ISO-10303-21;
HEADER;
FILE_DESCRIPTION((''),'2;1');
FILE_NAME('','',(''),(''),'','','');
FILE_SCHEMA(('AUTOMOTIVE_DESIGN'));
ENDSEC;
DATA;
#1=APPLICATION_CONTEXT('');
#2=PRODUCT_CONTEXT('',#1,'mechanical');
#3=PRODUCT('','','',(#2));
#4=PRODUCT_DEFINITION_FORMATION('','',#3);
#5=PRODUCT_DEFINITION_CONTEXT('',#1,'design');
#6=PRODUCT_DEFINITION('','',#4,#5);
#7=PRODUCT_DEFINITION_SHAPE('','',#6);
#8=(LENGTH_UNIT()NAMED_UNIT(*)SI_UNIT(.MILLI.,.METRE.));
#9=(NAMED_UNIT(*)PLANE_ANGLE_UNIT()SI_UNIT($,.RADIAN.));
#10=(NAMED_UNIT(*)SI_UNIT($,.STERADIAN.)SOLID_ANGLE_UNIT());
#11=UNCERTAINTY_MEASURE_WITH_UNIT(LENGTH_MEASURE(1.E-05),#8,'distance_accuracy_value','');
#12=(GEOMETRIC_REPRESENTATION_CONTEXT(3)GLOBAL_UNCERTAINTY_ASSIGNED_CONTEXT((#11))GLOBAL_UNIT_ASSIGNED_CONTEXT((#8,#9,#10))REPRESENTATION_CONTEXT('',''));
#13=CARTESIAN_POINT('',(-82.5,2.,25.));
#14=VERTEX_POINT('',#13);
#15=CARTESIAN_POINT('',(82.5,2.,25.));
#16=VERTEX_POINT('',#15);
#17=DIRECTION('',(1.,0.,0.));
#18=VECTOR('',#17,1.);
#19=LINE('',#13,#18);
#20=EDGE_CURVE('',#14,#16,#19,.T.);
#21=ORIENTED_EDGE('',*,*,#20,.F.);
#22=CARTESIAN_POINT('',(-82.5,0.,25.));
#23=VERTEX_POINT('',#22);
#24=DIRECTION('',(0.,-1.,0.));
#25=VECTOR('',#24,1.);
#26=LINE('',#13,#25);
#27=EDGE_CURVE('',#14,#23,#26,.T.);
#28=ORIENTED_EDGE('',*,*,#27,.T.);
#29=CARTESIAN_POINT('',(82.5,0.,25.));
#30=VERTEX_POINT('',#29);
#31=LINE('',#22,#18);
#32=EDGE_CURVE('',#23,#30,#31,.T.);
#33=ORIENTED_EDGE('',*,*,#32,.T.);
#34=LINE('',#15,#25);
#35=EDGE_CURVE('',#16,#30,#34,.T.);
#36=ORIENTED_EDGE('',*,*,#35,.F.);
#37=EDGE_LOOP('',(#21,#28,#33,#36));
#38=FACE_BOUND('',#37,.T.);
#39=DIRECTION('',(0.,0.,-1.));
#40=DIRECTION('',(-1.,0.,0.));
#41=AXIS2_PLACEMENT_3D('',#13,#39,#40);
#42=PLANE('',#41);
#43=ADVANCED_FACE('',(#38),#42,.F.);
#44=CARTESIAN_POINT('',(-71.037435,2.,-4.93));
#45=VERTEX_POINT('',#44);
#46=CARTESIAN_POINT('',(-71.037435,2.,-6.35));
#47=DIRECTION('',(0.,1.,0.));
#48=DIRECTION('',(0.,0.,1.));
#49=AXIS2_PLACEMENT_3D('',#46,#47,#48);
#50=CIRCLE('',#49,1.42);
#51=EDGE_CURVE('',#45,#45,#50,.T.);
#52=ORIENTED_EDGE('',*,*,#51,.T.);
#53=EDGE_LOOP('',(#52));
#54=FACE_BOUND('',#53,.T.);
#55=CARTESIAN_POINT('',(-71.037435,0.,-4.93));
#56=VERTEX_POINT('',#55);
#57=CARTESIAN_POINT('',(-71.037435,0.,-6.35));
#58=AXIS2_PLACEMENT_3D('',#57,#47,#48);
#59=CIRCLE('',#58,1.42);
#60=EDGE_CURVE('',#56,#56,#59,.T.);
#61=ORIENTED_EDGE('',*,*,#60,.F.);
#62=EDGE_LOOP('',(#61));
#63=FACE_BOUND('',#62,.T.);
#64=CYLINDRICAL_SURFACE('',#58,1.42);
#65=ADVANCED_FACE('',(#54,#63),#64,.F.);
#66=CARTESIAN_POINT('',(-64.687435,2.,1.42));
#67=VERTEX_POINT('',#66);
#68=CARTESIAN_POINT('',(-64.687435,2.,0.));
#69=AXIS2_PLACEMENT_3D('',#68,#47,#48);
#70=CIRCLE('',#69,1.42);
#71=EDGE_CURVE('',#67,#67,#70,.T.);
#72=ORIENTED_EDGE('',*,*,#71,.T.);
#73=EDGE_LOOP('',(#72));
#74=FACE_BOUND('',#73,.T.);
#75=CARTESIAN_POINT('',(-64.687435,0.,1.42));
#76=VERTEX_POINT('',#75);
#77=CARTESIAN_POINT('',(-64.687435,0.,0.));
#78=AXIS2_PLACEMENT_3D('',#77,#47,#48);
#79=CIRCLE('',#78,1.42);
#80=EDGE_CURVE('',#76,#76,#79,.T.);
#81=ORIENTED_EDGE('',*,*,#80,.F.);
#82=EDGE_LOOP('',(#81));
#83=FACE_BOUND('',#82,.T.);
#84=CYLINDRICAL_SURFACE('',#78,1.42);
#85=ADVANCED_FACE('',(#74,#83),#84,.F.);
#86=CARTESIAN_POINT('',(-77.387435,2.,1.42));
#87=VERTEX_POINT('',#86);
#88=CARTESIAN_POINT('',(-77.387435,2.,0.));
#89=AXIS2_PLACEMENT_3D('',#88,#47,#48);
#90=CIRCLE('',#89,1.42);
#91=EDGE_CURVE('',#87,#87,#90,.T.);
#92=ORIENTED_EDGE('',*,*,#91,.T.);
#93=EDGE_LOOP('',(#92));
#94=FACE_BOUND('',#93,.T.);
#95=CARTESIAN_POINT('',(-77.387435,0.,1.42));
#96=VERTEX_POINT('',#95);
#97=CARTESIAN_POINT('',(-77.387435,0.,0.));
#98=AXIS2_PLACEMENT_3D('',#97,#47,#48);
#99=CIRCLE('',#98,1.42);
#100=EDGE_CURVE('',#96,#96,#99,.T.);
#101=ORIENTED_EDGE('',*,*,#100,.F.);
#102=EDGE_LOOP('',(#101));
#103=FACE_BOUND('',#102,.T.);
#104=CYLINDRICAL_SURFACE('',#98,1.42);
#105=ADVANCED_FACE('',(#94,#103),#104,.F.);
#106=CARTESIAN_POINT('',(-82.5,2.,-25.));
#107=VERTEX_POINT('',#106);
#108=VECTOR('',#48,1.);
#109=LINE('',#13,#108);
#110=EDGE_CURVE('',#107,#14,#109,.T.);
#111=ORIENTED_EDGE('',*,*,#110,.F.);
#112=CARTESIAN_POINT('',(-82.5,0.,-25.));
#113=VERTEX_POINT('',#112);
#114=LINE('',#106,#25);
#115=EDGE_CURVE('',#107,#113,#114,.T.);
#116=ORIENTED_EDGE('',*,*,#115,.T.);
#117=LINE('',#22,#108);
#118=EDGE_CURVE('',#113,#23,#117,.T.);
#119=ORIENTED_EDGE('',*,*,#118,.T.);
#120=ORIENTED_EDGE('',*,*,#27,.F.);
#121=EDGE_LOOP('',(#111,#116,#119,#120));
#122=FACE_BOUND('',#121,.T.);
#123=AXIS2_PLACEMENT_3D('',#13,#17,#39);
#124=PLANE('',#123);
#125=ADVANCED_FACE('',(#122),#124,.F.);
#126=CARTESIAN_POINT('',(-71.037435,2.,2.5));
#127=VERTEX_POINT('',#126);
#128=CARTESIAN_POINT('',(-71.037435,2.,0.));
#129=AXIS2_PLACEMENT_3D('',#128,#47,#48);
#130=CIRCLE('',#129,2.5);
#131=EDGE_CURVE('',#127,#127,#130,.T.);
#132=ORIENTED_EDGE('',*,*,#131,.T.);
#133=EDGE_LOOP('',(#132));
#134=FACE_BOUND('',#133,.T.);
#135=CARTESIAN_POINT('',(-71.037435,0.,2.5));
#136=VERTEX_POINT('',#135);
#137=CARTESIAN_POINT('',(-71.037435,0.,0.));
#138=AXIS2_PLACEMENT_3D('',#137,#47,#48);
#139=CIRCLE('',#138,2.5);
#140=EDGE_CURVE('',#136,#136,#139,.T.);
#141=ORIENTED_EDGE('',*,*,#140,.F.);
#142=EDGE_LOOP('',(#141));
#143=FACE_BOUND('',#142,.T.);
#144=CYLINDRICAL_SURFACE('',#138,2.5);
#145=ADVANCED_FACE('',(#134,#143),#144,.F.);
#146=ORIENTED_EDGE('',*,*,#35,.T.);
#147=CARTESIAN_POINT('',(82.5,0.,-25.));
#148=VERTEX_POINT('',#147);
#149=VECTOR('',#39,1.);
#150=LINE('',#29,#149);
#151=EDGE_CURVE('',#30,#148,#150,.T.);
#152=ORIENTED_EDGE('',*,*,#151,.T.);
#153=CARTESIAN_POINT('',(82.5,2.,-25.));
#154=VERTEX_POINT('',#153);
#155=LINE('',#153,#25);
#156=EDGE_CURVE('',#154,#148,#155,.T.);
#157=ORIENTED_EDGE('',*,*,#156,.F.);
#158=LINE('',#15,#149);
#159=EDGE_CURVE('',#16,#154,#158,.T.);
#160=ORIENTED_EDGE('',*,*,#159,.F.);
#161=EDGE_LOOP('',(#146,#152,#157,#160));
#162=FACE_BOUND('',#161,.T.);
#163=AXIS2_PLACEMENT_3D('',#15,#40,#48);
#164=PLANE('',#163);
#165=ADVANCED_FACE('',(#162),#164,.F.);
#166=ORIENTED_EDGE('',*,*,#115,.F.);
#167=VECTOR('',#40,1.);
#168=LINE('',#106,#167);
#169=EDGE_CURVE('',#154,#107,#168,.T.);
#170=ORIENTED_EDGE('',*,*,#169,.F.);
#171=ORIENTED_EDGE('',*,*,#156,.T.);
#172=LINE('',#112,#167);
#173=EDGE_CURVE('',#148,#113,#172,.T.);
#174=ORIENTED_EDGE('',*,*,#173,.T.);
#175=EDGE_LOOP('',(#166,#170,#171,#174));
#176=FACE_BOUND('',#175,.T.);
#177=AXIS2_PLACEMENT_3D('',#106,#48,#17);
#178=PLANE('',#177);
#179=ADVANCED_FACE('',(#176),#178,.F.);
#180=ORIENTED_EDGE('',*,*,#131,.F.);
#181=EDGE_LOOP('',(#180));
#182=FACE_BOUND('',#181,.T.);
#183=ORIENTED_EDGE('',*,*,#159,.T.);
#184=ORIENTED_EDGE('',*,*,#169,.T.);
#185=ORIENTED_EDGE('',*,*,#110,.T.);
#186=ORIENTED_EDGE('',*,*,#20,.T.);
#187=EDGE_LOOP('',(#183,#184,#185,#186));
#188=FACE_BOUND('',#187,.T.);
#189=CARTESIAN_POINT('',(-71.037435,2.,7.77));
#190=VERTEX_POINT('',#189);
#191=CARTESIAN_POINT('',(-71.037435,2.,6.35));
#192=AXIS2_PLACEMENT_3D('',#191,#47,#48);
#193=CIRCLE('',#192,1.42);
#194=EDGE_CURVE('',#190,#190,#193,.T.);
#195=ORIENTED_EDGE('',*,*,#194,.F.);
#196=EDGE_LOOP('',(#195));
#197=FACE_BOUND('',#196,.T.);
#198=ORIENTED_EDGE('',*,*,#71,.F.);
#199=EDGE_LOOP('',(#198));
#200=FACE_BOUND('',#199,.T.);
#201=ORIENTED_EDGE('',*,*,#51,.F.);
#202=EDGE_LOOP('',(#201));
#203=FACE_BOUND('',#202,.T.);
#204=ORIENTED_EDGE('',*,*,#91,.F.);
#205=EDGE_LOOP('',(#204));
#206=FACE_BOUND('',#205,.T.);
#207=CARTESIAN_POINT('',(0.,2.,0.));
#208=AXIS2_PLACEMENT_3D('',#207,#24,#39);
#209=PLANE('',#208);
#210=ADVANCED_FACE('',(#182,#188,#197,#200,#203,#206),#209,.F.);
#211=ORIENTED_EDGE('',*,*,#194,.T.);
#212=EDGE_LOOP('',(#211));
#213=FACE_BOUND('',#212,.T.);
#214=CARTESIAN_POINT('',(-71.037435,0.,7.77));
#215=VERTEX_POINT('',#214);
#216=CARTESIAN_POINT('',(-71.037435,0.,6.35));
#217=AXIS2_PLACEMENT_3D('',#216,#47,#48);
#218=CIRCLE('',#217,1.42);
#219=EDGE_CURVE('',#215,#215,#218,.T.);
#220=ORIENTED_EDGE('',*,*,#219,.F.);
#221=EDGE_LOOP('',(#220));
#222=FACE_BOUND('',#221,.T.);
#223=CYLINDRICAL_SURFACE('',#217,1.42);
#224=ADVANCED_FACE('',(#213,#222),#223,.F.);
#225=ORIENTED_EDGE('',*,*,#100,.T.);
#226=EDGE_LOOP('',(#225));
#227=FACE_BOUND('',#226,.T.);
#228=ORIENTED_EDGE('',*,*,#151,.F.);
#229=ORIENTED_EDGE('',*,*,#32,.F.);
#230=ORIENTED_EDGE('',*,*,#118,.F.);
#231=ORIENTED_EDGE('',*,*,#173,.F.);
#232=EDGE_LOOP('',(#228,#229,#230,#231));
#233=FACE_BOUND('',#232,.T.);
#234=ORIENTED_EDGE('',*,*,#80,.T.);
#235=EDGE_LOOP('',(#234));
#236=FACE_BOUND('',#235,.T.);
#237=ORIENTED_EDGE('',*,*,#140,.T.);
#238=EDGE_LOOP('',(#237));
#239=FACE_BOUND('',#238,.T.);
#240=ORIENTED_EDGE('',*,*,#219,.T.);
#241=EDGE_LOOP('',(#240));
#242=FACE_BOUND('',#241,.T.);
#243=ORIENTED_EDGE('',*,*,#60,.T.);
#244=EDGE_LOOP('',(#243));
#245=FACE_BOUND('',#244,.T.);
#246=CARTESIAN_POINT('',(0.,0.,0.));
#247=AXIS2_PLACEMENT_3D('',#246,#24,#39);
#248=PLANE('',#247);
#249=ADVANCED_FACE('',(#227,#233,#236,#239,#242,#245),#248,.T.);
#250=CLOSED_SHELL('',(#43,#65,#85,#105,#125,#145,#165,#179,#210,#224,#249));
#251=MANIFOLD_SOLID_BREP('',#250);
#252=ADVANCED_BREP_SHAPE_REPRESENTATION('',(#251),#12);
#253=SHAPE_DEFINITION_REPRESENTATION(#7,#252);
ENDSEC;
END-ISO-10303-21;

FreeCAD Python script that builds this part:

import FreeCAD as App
import Part
import Sketcher

V = App.Vector
Q = App.Units.Quantity


def add_polygon(sketch, points):
    """Adds a closed chain of lines whose ends are joined by coincident constraints."""
    first, n = sketch.GeometryCount, len(points)
    for a, b in zip(points, points[1:] + points[:1]):
        sketch.addGeometry(Part.LineSegment(App.Vector(*a, 0), App.Vector(*b, 0)), False)
    for i in range(n):
        sketch.addConstraint(Sketcher.Constraint("Coincident", first + i, 2, first + (i + 1) % n, 1))

doc = App.newDocument("Part")
params = doc.addObject("Spreadsheet::Sheet", "Params")
for row, (alias, value) in enumerate([
    ("sketch1_width", "165 mm"),
    ("sketch1_height", "50 mm"),
    ("pad1_length", "2 mm"),
    ("sketch2_diameter", "5 mm"),
    ("sketch2_diameter2", "2.84 mm"),
    ("pocket1_length", "2 mm"),
], start=1):
    params.set(f"A{row}", alias)
    params.set(f"B{row}", "=" + value)
    params.setAlias(f"B{row}", alias)

body = doc.addObject("PartDesign::Body", "Body")

# Sketch on XZ plane
sketch1 = body.newObject("Sketcher::SketchObject", "Sketch")
sketch1.AttachmentSupport = (doc.getObject("XZ_Plane"), [""])
sketch1.MapMode = "FlatFace"
add_polygon(sketch1, [(-82.5, -25), (-82.5, 25), (82.5, 25), (82.5, -25)])  # lines 0-3
sketch1.addConstraint([
    Sketcher.Constraint("Vertical", 0),
    Sketcher.Constraint("Horizontal", 1),
    Sketcher.Constraint("Vertical", 2),
    Sketcher.Constraint("Horizontal", 3),
    Sketcher.Constraint("Symmetric", 0, 2, 2, 2, -1, 1),
    Sketcher.Constraint("DistanceX", 1, 1, 1, 2, Q("165 mm")),
    Sketcher.Constraint("DistanceY", 0, 1, 0, 2, Q("50 mm")),
])
sketch1.setExpression("Constraints[9]", "Params.sketch1_width")
sketch1.setExpression("Constraints[10]", "Params.sketch1_height")
pad1 = body.newObject("PartDesign::Pad", "Pad")
pad1.Profile = sketch1
pad1.setExpression("Length", "Params.pad1_length")
pad1.Reversed = True

# Sketch on XZ plane
sketch2 = body.newObject("Sketcher::SketchObject", "Sketch001")
sketch2.AttachmentSupport = (doc.getObject("XZ_Plane"), [""])
sketch2.MapMode = "FlatFace"
sketch2.AttachmentOffset = App.Placement(V(0, 0, -2), App.Rotation())
sketch2.addGeometry([
    Part.Circle(V(-71.037435, 0, 0), V(0, 0, 1), 2.5),  # 0
    Part.Circle(V(-71.037435, -6.35, 0), V(0, 0, 1), 1.42),  # 1
    Part.Circle(V(-77.387435, 0, 0), V(0, 0, 1), 1.42),  # 2
    Part.Circle(V(-71.037435, 6.35, 0), V(0, 0, 1), 1.42),  # 3
    Part.Circle(V(-64.687435, 0, 0), V(0, 0, 1), 1.42),  # 4
], False)
sketch2.addConstraint([
    Sketcher.Constraint("Equal", 1, 2),
    Sketcher.Constraint("Equal", 2, 3),
    Sketcher.Constraint("Equal", 3, 4),
    Sketcher.Constraint("Symmetric", 1, 3, 3, 3, -1),
    Sketcher.Constraint("PointOnObject", 0, 3, -1),
    Sketcher.Constraint("PointOnObject", 2, 3, -1),
    Sketcher.Constraint("PointOnObject", 4, 3, -1),
    Sketcher.Constraint("Vertical", 0, 3, 1, 3),
    Sketcher.Constraint("Diameter", 0, Q("5 mm")),
    Sketcher.Constraint("Diameter", 1, Q("2.84 mm")),
    Sketcher.Constraint("DistanceY", 1, 3, 3, 3, Q("12.7 mm")),
    Sketcher.Constraint("DistanceX", 2, 3, 4, 3, Q("12.7 mm")),
    Sketcher.Constraint("DistanceX", 2, 3, 0, 3, Q("6.35 mm")),
    Sketcher.Constraint("DistanceX", 0, 3, -1, 1, Q("71.037435 mm")),
])
sketch2.setExpression("Constraints[8]", "Params.sketch2_diameter")
sketch2.setExpression("Constraints[9]", "Params.sketch2_diameter2")
pocket1 = body.newObject("PartDesign::Pocket", "Pocket")
pocket1.Profile = sketch2
pocket1.setExpression("Length", "Params.pocket1_length")
pocket1.Reversed = True

doc.recompute()
